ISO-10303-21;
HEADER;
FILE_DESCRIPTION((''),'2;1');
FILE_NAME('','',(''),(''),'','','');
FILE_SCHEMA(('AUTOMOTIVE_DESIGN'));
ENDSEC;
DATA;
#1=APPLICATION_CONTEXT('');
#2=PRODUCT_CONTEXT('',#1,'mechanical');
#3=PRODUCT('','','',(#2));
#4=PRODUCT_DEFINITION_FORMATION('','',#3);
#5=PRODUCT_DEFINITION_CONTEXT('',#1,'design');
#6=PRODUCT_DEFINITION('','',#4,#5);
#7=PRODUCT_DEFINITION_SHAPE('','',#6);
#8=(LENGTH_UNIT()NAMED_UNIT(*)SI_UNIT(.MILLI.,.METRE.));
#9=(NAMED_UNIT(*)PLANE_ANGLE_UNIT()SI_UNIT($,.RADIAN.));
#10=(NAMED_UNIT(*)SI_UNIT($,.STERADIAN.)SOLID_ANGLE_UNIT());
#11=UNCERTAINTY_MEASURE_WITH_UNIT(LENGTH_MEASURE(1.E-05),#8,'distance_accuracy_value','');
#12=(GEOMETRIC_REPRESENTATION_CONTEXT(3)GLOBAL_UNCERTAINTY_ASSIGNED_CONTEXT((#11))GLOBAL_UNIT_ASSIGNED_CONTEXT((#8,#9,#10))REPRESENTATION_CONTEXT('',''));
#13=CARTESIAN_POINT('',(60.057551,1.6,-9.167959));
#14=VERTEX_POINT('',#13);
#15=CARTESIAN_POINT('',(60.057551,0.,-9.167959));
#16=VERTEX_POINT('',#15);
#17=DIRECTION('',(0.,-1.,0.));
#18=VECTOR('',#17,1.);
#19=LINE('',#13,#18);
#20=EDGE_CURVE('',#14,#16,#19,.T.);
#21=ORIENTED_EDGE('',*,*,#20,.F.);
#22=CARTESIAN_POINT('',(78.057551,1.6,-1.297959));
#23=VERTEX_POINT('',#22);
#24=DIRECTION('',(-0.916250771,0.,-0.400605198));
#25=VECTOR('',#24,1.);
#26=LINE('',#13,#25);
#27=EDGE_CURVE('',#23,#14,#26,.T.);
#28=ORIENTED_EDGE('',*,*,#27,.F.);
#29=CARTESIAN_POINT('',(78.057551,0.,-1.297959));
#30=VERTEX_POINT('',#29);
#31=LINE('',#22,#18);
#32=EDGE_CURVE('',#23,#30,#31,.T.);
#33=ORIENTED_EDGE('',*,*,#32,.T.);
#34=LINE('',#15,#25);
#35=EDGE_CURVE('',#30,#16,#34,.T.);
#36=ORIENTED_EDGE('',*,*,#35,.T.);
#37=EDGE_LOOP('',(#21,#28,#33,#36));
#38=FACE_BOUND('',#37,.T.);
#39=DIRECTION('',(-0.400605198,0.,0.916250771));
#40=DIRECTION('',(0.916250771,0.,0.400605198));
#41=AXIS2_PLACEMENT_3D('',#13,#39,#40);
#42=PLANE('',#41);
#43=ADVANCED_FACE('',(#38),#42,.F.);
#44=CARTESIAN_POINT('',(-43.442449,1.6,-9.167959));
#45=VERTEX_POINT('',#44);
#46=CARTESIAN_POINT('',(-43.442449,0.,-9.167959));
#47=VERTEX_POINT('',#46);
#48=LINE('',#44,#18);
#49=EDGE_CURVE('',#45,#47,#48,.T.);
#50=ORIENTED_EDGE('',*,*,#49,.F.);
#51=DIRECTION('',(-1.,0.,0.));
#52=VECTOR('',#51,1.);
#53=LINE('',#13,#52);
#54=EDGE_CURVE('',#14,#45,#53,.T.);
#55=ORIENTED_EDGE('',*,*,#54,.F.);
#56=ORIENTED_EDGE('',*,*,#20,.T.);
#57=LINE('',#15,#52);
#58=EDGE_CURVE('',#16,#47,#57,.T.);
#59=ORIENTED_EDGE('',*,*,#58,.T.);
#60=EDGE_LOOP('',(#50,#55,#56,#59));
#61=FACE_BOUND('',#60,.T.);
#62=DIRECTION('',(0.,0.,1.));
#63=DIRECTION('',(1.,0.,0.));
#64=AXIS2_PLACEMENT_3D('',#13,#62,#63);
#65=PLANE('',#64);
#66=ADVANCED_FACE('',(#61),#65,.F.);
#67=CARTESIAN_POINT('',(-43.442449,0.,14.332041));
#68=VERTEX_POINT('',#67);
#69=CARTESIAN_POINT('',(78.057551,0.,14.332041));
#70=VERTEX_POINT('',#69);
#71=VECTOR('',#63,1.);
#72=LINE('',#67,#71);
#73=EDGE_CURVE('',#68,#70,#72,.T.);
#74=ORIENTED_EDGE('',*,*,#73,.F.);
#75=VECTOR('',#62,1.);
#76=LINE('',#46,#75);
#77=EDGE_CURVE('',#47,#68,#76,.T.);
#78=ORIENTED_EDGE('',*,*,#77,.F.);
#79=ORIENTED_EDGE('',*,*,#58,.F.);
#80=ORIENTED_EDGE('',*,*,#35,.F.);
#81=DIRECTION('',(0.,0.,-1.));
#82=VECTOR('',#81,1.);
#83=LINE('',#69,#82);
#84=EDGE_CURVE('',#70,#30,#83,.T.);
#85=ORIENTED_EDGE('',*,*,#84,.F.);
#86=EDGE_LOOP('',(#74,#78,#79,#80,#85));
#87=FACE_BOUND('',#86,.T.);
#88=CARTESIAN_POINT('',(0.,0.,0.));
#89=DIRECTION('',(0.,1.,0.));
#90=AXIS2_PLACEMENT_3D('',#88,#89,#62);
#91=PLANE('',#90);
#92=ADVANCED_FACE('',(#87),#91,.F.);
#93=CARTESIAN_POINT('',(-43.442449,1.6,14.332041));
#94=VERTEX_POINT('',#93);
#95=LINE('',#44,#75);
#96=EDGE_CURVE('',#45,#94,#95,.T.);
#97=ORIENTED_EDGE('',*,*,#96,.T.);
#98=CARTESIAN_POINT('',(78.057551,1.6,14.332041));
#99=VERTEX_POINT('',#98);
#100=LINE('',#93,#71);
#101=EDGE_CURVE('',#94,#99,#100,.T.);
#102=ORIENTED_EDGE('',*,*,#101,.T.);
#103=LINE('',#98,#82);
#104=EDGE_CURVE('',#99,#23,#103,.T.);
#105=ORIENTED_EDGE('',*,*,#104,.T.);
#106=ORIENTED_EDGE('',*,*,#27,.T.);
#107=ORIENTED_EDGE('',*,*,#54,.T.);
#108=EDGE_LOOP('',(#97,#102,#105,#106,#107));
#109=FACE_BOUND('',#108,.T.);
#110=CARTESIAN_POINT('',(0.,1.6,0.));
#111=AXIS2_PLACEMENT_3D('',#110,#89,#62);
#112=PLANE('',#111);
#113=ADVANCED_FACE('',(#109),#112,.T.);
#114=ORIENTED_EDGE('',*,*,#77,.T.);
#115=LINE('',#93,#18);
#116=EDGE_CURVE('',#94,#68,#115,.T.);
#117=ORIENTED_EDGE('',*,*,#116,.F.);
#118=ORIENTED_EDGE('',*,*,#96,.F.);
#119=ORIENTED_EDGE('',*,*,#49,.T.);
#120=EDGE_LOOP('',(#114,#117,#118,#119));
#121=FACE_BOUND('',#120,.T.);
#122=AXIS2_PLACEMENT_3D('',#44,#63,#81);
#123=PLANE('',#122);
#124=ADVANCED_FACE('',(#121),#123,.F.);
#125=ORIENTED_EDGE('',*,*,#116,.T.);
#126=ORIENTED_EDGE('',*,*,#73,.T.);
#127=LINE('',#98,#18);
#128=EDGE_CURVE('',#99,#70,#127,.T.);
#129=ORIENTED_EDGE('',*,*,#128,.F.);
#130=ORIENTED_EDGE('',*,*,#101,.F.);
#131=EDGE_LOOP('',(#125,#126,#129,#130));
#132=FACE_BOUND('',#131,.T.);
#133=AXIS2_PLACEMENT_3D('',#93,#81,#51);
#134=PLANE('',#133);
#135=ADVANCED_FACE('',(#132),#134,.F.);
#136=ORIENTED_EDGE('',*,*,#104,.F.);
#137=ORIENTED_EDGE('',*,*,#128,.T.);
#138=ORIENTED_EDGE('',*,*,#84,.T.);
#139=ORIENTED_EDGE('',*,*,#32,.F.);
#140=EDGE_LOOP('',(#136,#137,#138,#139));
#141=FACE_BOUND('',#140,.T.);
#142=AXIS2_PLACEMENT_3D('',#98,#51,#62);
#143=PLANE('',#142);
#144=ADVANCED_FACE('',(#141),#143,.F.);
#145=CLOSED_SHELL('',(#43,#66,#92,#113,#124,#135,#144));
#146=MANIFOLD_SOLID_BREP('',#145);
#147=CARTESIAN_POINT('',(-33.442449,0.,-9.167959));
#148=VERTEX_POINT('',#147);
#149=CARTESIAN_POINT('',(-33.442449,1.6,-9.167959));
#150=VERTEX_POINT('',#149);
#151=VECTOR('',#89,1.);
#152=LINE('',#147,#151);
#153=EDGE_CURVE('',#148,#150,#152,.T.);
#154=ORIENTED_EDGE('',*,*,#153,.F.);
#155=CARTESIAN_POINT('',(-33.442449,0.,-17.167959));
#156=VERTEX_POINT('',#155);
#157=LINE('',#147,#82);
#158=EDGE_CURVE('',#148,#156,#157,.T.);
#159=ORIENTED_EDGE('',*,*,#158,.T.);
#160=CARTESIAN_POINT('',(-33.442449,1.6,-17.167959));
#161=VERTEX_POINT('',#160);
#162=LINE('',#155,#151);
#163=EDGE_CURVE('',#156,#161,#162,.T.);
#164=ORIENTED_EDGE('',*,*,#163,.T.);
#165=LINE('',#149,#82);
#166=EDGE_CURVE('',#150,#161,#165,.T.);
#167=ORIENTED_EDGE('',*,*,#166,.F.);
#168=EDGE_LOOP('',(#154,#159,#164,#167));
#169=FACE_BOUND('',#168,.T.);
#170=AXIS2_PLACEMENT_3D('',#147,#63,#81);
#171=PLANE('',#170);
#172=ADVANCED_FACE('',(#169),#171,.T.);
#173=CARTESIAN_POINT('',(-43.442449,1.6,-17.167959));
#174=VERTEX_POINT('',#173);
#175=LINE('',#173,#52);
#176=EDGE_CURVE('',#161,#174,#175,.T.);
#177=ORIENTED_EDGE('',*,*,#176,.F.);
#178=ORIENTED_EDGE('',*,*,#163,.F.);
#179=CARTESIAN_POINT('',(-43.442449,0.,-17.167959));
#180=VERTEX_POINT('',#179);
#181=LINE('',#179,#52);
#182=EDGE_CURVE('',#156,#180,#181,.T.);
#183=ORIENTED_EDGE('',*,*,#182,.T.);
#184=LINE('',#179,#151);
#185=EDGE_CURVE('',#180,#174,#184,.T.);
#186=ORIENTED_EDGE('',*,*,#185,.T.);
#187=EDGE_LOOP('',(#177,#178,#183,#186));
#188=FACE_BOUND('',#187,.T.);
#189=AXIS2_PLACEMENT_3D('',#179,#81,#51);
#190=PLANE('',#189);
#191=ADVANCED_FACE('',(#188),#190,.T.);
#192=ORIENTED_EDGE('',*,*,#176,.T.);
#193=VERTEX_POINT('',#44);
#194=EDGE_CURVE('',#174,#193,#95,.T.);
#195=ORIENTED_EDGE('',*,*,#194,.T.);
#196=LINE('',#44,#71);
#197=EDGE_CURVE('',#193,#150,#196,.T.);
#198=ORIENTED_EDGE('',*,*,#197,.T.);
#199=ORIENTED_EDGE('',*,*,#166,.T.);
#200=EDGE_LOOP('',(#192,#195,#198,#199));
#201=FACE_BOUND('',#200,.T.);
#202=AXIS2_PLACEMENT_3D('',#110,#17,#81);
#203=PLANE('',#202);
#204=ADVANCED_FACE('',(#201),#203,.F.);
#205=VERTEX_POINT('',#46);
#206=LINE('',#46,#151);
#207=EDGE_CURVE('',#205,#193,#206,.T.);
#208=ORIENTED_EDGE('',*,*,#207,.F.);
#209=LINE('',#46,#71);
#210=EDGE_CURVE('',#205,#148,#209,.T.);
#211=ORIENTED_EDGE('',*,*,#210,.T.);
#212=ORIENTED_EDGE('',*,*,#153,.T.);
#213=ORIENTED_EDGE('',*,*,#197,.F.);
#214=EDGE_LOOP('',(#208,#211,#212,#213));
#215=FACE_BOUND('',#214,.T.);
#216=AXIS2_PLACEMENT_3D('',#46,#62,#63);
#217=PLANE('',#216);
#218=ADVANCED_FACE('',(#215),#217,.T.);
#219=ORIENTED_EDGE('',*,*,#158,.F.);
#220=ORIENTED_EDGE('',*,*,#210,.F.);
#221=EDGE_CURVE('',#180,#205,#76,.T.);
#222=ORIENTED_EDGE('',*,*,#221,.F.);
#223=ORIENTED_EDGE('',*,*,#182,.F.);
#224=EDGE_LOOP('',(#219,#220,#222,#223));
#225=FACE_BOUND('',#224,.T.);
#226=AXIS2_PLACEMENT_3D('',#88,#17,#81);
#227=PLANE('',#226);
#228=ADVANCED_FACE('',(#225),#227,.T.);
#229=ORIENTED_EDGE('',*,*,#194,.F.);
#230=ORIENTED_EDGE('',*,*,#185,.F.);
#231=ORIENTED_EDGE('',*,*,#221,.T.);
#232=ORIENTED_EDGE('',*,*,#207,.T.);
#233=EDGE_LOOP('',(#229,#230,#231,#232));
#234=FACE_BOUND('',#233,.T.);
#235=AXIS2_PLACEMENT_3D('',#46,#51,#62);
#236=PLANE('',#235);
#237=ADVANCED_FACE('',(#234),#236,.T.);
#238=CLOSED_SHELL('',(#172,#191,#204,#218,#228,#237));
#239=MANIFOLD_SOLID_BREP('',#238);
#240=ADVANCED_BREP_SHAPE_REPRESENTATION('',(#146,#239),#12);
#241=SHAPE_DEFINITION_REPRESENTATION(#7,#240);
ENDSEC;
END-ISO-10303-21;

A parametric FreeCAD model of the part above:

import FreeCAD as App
import Part
import Sketcher
from FreeCAD import Vector
Q = App.Units.Quantity


def add_polygon(sketch, points):
    """Adds a closed chain of lines whose ends are joined by coincident constraints."""
    first, n = sketch.GeometryCount, len(points)
    for a, b in zip(points, points[1:] + points[:1]):
        sketch.addGeometry(Part.LineSegment(App.Vector(*a, 0), App.Vector(*b, 0)), False)
    for i in range(n):
        sketch.addConstraint(Sketcher.Constraint("Coincident", first + i, 2, first + (i + 1) % n, 1))

doc = App.newDocument("Part")
body = doc.addObject("PartDesign::Body", "Body")

# Sketch on XZ plane
sketch1 = body.newObject("Sketcher::SketchObject", "Sketch")
sketch1.AttachmentSupport = (doc.getObject("XZ_Plane"), [""])
sketch1.MapMode = "FlatFace"
add_polygon(sketch1, [(-43, -9), (-43, 14), (78, 14), (78, -1), (60, -9)])  # lines 0-4
sketch1.addConstraint([
    Sketcher.Constraint("Vertical", 0),
    Sketcher.Constraint("Horizontal", 1),
    Sketcher.Constraint("Vertical", 2),
    Sketcher.Constraint("Horizontal", 4),
    Sketcher.Constraint("DistanceX", 1, 1, 1, 2, Q("121.5 mm")),
    Sketcher.Constraint("DistanceX", 4, 2, 4, 1, Q("103.5 mm")),
    Sketcher.Constraint("DistanceY", 0, 1, 0, 2, Q("23.5 mm")),
    Sketcher.Constraint("DistanceY", 2, 2, 2, 1, Q("15.63 mm")),
    Sketcher.Constraint("DistanceX", 0, 2, -1, 1, Q("43.442449 mm")),
    Sketcher.Constraint("DistanceY", -1, 1, 0, 2, Q("14.332041 mm")),
])
pad1 = body.newObject("PartDesign::Pad", "Pad")
pad1.Profile = sketch1
pad1.Length = 1.6
pad1.Reversed = True
body2 = doc.addObject("PartDesign::Body", "Body001")

# Sketch on XZ plane
sketch2 = body2.newObject("Sketcher::SketchObject", "Sketch001")
sketch2.AttachmentSupport = (doc.getObject("XZ_Plane001"), [""])
sketch2.MapMode = "FlatFace"
sketch2.AttachmentOffset = App.Placement(Vector(0, 0, -1.6), App.Rotation())
add_polygon(sketch2, [(-43, -17), (-43, -9), (-33, -9), (-33, -17)])  # lines 0-3
sketch2.addConstraint([
    Sketcher.Constraint("Vertical", 0),
    Sketcher.Constraint("Horizontal", 1),
    Sketcher.Constraint("Vertical", 2),
    Sketcher.Constraint("Horizontal", 3),
    Sketcher.Constraint("DistanceX", 1, 1, 1, 2, Q("10 mm")),
    Sketcher.Constraint("DistanceY", 0, 1, 0, 2, Q("8 mm")),
    Sketcher.Constraint("DistanceX", 0, 2, -1, 1, Q("43.442449 mm")),
    Sketcher.Constraint("DistanceY", 0, 2, -1, 1, Q("9.167959 mm")),
])
pad2 = body2.newObject("PartDesign::Pad", "Pad001")
pad2.Profile = sketch2
pad2.Length = 1.6

doc.recompute()
